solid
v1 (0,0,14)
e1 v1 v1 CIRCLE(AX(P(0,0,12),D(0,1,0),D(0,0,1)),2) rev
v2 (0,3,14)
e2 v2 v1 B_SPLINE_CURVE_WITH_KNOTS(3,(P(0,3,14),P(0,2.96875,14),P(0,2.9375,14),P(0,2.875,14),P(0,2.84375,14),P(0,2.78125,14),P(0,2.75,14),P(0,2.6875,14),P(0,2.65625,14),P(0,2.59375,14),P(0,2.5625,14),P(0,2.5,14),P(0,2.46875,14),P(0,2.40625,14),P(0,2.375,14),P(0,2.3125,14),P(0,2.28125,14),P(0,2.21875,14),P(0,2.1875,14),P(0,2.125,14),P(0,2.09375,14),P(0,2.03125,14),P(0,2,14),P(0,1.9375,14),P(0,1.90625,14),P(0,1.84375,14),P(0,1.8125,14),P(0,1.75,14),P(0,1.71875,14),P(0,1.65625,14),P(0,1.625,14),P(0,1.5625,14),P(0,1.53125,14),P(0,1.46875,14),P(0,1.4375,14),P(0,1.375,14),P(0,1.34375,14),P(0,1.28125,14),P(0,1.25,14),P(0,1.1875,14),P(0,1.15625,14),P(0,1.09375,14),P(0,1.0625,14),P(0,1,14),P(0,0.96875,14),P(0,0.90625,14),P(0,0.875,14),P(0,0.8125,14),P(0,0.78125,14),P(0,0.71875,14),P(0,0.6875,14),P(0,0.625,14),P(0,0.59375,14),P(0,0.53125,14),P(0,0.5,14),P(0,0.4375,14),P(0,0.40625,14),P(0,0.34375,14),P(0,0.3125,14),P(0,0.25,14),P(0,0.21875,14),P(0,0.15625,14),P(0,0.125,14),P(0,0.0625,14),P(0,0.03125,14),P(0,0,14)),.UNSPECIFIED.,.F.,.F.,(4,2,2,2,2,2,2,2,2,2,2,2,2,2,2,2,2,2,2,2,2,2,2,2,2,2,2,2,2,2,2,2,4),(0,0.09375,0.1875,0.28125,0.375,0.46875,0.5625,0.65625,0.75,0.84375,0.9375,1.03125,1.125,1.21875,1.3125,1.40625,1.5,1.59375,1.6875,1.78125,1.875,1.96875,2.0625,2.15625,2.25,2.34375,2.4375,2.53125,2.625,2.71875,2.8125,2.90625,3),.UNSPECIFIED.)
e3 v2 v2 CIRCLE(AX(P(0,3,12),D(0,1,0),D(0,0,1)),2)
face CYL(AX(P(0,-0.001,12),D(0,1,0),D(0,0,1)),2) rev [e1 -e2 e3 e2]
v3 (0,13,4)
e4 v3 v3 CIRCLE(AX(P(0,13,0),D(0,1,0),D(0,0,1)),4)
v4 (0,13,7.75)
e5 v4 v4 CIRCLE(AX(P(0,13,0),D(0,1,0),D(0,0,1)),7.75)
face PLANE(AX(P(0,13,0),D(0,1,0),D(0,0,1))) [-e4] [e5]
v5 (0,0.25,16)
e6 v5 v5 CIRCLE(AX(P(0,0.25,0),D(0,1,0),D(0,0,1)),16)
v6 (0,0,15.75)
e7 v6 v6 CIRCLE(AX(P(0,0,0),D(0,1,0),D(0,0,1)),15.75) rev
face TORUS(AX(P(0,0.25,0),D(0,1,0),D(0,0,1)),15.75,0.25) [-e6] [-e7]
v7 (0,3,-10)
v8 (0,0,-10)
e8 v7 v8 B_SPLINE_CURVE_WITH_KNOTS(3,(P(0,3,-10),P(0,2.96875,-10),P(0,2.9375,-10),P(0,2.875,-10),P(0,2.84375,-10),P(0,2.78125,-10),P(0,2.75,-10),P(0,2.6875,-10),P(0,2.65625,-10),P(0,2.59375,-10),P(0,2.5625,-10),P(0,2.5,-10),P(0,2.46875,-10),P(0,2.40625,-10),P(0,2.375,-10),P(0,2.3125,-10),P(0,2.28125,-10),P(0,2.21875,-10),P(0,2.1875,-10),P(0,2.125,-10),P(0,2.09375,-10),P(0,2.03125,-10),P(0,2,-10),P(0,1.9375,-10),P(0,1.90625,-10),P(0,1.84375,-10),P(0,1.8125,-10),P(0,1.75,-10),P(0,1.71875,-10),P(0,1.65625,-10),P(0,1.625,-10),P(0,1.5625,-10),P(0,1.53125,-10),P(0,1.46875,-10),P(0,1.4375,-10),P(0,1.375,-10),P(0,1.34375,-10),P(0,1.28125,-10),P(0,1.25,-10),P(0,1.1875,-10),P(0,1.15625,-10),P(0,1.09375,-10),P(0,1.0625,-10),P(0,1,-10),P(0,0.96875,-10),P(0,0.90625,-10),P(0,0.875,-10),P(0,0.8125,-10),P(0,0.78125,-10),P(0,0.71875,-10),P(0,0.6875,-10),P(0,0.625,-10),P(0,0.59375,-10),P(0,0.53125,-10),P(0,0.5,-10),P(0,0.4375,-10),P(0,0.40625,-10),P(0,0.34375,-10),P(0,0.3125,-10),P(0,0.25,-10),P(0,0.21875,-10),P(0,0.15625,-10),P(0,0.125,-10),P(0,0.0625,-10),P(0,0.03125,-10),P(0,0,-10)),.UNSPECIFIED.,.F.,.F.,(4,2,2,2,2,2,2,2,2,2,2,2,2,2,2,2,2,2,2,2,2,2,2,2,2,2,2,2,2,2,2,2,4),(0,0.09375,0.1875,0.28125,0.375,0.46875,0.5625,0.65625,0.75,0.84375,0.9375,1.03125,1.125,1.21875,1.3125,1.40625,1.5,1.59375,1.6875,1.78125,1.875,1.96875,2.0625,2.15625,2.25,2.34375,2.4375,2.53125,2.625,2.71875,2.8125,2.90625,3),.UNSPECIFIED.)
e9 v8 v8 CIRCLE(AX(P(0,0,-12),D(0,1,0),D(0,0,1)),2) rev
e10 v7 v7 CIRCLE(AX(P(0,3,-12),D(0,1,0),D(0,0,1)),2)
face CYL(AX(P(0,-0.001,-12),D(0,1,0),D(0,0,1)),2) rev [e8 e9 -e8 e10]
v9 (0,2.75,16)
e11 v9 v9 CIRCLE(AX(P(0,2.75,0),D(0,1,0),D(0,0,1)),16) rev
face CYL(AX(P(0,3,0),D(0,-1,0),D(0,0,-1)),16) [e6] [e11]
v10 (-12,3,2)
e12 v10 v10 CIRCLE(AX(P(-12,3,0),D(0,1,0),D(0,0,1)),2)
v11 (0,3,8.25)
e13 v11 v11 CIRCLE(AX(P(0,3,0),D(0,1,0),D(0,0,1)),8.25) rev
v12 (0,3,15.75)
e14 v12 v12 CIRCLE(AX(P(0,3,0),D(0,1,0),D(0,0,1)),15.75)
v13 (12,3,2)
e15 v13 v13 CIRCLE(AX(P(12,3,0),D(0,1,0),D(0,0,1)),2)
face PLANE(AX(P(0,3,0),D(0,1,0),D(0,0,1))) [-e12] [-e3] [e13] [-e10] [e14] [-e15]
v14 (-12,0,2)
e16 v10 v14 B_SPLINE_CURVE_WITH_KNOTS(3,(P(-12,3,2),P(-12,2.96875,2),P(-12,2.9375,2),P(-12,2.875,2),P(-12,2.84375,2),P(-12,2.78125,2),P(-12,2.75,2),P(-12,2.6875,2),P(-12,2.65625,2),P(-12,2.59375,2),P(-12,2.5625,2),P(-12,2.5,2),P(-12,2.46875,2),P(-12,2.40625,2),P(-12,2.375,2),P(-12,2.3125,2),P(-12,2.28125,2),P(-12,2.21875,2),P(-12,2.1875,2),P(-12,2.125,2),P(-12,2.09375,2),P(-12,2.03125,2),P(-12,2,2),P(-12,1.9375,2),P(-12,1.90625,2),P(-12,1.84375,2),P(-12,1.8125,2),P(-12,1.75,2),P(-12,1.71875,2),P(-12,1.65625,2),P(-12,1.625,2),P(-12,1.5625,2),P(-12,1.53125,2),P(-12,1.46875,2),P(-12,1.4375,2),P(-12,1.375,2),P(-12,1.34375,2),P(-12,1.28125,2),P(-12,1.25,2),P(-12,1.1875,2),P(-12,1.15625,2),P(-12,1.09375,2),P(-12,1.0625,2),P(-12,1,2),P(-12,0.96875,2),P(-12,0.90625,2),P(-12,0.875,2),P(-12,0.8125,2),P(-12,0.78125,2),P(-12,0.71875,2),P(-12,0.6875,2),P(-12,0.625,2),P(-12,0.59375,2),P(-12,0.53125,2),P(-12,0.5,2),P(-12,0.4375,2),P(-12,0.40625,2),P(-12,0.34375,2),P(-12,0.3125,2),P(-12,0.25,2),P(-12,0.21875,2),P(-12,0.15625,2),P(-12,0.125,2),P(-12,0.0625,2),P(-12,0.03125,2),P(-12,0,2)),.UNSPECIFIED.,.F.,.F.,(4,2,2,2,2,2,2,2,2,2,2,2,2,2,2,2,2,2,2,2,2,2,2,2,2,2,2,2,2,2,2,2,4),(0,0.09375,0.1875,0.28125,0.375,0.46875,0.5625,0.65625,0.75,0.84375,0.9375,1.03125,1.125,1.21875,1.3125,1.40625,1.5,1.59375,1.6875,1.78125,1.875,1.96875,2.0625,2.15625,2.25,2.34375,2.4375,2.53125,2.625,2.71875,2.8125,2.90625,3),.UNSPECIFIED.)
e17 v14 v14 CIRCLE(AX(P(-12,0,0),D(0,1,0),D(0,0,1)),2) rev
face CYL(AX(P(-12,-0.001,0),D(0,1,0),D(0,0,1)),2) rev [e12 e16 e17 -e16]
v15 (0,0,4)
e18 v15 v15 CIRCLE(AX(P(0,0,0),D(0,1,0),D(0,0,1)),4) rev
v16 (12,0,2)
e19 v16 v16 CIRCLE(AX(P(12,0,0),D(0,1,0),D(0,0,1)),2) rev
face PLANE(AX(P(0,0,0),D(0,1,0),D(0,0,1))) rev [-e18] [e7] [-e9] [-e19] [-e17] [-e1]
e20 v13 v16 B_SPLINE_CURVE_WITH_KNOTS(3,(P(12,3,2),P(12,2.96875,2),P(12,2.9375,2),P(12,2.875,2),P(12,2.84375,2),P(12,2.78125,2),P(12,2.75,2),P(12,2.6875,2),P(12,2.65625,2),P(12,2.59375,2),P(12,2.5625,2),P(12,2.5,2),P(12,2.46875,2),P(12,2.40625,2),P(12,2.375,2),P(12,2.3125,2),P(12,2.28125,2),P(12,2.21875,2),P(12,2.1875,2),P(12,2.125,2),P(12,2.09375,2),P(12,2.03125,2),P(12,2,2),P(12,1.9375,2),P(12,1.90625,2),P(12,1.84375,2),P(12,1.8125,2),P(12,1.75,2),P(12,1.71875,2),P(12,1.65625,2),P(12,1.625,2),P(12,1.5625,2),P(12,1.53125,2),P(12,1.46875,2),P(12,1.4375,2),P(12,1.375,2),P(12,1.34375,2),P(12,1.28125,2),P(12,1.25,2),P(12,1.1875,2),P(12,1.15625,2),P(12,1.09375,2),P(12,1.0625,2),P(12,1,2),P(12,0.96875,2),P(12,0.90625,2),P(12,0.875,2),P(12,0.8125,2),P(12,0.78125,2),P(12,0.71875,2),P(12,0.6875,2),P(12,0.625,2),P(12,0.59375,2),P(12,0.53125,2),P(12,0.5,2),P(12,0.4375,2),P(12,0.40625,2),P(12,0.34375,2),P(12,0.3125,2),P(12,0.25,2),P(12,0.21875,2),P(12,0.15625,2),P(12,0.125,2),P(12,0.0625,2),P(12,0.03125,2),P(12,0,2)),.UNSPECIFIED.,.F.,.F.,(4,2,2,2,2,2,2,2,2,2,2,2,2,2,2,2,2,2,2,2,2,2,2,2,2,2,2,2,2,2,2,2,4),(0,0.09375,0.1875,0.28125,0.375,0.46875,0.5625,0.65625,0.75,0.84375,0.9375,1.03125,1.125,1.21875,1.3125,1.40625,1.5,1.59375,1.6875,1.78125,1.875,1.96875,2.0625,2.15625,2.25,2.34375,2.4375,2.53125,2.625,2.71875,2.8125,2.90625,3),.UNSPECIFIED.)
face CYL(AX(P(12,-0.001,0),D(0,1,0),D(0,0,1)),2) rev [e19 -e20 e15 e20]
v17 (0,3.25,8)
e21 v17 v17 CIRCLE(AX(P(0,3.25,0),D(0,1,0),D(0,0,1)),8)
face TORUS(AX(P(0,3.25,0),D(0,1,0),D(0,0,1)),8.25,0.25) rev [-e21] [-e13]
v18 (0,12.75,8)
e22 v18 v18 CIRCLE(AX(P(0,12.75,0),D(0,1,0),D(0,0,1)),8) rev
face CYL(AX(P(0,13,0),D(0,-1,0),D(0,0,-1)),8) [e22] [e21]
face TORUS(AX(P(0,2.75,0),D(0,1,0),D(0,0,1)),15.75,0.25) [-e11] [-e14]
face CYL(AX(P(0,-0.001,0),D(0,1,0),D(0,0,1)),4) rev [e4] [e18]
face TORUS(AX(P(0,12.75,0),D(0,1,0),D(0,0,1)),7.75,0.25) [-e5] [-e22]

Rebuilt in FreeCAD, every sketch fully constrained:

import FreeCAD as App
import Part
import Sketcher

V = App.Vector
Q = App.Units.Quantity


def edges_at(feature, points):
    """Names of the edges that pass closest to the given points."""
    edges = feature.Shape.Edges
    near = lambda p: min(range(len(edges)), key=lambda i: edges[i].distToShape(Part.Vertex(*p))[0])
    return sorted({f"Edge{near(p) + 1}" for p in points})

doc = App.newDocument("Part")
body = doc.addObject("PartDesign::Body", "Body")

# Sketch on XZ plane
sketch1 = body.newObject("Sketcher::SketchObject", "Sketch")
sketch1.AttachmentSupport = (doc.getObject("XZ_Plane"), [""])
sketch1.MapMode = "FlatFace"
sketch1.addGeometry(Part.Circle(V(0, 0, 0), V(0, 0, 1), 16), False)
sketch1.addConstraint([
    Sketcher.Constraint("Coincident", 0, 3, -1, 1),
    Sketcher.Constraint("Diameter", 0, Q("32 mm")),
])
pad1 = body.newObject("PartDesign::Pad", "Pad")
pad1.Profile = sketch1
pad1.Length = 3
pad1.Reversed = True
doc.recompute()

fillet = body.newObject("PartDesign::Fillet", "Fillet")
fillet.Base = (pad1, edges_at(pad1, [(0, 0, -16), (0, 3, -16)]))
fillet.Radius = 0.25

# Sketch on XZ plane
sketch2 = body.newObject("Sketcher::SketchObject", "Sketch001")
sketch2.AttachmentSupport = (doc.getObject("XZ_Plane"), [""])
sketch2.MapMode = "FlatFace"
sketch2.AttachmentOffset = App.Placement(V(0, 0, -3), App.Rotation())
sketch2.addGeometry(Part.Circle(V(0, 0, 0), V(0, 0, 1), 8), False)
sketch2.addConstraint([
    Sketcher.Constraint("Coincident", 0, 3, -1, 1),
    Sketcher.Constraint("Diameter", 0, Q("16 mm")),
])
pad2 = body.newObject("PartDesign::Pad", "Pad001")
pad2.Profile = sketch2
pad2.Length = 10
pad2.Reversed = True
doc.recompute()

fillet2 = body.newObject("PartDesign::Fillet", "Fillet001")
fillet2.Base = (pad2, edges_at(pad2, [(0, 3, -8), (0, 13, -8)]))
fillet2.Radius = 0.25

# Sketch on XZ plane
sketch3 = body.newObject("Sketcher::SketchObject", "Sketch002")
sketch3.AttachmentSupport = (doc.getObject("XZ_Plane"), [""])
sketch3.MapMode = "FlatFace"
sketch3.AttachmentOffset = App.Placement(V(0, 0, -13), App.Rotation())
sketch3.addGeometry(Part.Circle(V(0, 0, 0), V(0, 0, 1), 4), False)
sketch3.addConstraint([
    Sketcher.Constraint("Coincident", 0, 3, -1, 1),
    Sketcher.Constraint("Diameter", 0, Q("8 mm")),
])
pocket1 = body.newObject("PartDesign::Pocket", "Pocket")
pocket1.Profile = sketch3
pocket1.Type = "UpToFirst"
pocket1.Reversed = True

# Sketch on XZ plane
sketch4 = body.newObject("Sketcher::SketchObject", "Sketch003")
sketch4.AttachmentSupport = (doc.getObject("XZ_Plane"), [""])
sketch4.MapMode = "FlatFace"
sketch4.AttachmentOffset = App.Placement(V(0, 0, -3), App.Rotation())
sketch4.addGeometry(Part.Circle(V(0, -12, 0), V(0, 0, 1), 2), False)
sketch4.addConstraint([
    Sketcher.Constraint("PointOnObject", 0, 3, -2),
    Sketcher.Constraint("Diameter", 0, Q("4 mm")),
    Sketcher.Constraint("DistanceY", 0, 3, -1, 1, Q("12 mm")),
])
pocket2 = body.newObject("PartDesign::Pocket", "Pocket001")
pocket2.Profile = sketch4
pocket2.Type = "UpToFirst"
pocket2.Reversed = True

# Sketch on XZ plane
sketch5 = body.newObject("Sketcher::SketchObject", "Sketch004")
sketch5.AttachmentSupport = (doc.getObject("XZ_Plane"), [""])
sketch5.MapMode = "FlatFace"
sketch5.AttachmentOffset = App.Placement(V(0, 0, -3), App.Rotation())
sketch5.addGeometry(Part.Circle(V(-12, 0, 0), V(0, 0, 1), 2), False)
sketch5.addConstraint([
    Sketcher.Constraint("PointOnObject", 0, 3, -1),
    Sketcher.Constraint("Diameter", 0, Q("4 mm")),
    Sketcher.Constraint("DistanceX", 0, 3, -1, 1, Q("12 mm")),
])
pocket3 = body.newObject("PartDesign::Pocket", "Pocket002")
pocket3.Profile = sketch5
pocket3.Type = "UpToFirst"
pocket3.Reversed = True

# Sketch on XZ plane
sketch6 = body.newObject("Sketcher::SketchObject", "Sketch005")
sketch6.AttachmentSupport = (doc.getObject("XZ_Plane"), [""])
sketch6.MapMode = "FlatFace"
sketch6.AttachmentOffset = App.Placement(V(0, 0, -3), App.Rotation())
sketch6.addGeometry(Part.Circle(V(0, 12, 0), V(0, 0, 1), 2), False)
sketch6.addConstraint([
    Sketcher.Constraint("PointOnObject", 0, 3, -2),
    Sketcher.Constraint("Diameter", 0, Q("4 mm")),
    Sketcher.Constraint("DistanceY", -1, 1, 0, 3, Q("12 mm")),
])
pocket4 = body.newObject("PartDesign::Pocket", "Pocket003")
pocket4.Profile = sketch6
pocket4.Type = "UpToFirst"
pocket4.Reversed = True

# Sketch on XZ plane
sketch7 = body.newObject("Sketcher::SketchObject", "Sketch006")
sketch7.AttachmentSupport = (doc.getObject("XZ_Plane"), [""])
sketch7.MapMode = "FlatFace"
sketch7.AttachmentOffset = App.Placement(V(0, 0, -3), App.Rotation())
sketch7.addGeometry(Part.Circle(V(12, 0, 0), V(0, 0, 1), 2), False)
sketch7.addConstraint([
    Sketcher.Constraint("PointOnObject", 0, 3, -1),
    Sketcher.Constraint("Diameter", 0, Q("4 mm")),
    Sketcher.Constraint("DistanceX", -1, 1, 0, 3, Q("12 mm")),
])
pocket5 = body.newObject("PartDesign::Pocket", "Pocket004")
pocket5.Profile = sketch7
pocket5.Type = "UpToFirst"
pocket5.Reversed = True

doc.recompute()
